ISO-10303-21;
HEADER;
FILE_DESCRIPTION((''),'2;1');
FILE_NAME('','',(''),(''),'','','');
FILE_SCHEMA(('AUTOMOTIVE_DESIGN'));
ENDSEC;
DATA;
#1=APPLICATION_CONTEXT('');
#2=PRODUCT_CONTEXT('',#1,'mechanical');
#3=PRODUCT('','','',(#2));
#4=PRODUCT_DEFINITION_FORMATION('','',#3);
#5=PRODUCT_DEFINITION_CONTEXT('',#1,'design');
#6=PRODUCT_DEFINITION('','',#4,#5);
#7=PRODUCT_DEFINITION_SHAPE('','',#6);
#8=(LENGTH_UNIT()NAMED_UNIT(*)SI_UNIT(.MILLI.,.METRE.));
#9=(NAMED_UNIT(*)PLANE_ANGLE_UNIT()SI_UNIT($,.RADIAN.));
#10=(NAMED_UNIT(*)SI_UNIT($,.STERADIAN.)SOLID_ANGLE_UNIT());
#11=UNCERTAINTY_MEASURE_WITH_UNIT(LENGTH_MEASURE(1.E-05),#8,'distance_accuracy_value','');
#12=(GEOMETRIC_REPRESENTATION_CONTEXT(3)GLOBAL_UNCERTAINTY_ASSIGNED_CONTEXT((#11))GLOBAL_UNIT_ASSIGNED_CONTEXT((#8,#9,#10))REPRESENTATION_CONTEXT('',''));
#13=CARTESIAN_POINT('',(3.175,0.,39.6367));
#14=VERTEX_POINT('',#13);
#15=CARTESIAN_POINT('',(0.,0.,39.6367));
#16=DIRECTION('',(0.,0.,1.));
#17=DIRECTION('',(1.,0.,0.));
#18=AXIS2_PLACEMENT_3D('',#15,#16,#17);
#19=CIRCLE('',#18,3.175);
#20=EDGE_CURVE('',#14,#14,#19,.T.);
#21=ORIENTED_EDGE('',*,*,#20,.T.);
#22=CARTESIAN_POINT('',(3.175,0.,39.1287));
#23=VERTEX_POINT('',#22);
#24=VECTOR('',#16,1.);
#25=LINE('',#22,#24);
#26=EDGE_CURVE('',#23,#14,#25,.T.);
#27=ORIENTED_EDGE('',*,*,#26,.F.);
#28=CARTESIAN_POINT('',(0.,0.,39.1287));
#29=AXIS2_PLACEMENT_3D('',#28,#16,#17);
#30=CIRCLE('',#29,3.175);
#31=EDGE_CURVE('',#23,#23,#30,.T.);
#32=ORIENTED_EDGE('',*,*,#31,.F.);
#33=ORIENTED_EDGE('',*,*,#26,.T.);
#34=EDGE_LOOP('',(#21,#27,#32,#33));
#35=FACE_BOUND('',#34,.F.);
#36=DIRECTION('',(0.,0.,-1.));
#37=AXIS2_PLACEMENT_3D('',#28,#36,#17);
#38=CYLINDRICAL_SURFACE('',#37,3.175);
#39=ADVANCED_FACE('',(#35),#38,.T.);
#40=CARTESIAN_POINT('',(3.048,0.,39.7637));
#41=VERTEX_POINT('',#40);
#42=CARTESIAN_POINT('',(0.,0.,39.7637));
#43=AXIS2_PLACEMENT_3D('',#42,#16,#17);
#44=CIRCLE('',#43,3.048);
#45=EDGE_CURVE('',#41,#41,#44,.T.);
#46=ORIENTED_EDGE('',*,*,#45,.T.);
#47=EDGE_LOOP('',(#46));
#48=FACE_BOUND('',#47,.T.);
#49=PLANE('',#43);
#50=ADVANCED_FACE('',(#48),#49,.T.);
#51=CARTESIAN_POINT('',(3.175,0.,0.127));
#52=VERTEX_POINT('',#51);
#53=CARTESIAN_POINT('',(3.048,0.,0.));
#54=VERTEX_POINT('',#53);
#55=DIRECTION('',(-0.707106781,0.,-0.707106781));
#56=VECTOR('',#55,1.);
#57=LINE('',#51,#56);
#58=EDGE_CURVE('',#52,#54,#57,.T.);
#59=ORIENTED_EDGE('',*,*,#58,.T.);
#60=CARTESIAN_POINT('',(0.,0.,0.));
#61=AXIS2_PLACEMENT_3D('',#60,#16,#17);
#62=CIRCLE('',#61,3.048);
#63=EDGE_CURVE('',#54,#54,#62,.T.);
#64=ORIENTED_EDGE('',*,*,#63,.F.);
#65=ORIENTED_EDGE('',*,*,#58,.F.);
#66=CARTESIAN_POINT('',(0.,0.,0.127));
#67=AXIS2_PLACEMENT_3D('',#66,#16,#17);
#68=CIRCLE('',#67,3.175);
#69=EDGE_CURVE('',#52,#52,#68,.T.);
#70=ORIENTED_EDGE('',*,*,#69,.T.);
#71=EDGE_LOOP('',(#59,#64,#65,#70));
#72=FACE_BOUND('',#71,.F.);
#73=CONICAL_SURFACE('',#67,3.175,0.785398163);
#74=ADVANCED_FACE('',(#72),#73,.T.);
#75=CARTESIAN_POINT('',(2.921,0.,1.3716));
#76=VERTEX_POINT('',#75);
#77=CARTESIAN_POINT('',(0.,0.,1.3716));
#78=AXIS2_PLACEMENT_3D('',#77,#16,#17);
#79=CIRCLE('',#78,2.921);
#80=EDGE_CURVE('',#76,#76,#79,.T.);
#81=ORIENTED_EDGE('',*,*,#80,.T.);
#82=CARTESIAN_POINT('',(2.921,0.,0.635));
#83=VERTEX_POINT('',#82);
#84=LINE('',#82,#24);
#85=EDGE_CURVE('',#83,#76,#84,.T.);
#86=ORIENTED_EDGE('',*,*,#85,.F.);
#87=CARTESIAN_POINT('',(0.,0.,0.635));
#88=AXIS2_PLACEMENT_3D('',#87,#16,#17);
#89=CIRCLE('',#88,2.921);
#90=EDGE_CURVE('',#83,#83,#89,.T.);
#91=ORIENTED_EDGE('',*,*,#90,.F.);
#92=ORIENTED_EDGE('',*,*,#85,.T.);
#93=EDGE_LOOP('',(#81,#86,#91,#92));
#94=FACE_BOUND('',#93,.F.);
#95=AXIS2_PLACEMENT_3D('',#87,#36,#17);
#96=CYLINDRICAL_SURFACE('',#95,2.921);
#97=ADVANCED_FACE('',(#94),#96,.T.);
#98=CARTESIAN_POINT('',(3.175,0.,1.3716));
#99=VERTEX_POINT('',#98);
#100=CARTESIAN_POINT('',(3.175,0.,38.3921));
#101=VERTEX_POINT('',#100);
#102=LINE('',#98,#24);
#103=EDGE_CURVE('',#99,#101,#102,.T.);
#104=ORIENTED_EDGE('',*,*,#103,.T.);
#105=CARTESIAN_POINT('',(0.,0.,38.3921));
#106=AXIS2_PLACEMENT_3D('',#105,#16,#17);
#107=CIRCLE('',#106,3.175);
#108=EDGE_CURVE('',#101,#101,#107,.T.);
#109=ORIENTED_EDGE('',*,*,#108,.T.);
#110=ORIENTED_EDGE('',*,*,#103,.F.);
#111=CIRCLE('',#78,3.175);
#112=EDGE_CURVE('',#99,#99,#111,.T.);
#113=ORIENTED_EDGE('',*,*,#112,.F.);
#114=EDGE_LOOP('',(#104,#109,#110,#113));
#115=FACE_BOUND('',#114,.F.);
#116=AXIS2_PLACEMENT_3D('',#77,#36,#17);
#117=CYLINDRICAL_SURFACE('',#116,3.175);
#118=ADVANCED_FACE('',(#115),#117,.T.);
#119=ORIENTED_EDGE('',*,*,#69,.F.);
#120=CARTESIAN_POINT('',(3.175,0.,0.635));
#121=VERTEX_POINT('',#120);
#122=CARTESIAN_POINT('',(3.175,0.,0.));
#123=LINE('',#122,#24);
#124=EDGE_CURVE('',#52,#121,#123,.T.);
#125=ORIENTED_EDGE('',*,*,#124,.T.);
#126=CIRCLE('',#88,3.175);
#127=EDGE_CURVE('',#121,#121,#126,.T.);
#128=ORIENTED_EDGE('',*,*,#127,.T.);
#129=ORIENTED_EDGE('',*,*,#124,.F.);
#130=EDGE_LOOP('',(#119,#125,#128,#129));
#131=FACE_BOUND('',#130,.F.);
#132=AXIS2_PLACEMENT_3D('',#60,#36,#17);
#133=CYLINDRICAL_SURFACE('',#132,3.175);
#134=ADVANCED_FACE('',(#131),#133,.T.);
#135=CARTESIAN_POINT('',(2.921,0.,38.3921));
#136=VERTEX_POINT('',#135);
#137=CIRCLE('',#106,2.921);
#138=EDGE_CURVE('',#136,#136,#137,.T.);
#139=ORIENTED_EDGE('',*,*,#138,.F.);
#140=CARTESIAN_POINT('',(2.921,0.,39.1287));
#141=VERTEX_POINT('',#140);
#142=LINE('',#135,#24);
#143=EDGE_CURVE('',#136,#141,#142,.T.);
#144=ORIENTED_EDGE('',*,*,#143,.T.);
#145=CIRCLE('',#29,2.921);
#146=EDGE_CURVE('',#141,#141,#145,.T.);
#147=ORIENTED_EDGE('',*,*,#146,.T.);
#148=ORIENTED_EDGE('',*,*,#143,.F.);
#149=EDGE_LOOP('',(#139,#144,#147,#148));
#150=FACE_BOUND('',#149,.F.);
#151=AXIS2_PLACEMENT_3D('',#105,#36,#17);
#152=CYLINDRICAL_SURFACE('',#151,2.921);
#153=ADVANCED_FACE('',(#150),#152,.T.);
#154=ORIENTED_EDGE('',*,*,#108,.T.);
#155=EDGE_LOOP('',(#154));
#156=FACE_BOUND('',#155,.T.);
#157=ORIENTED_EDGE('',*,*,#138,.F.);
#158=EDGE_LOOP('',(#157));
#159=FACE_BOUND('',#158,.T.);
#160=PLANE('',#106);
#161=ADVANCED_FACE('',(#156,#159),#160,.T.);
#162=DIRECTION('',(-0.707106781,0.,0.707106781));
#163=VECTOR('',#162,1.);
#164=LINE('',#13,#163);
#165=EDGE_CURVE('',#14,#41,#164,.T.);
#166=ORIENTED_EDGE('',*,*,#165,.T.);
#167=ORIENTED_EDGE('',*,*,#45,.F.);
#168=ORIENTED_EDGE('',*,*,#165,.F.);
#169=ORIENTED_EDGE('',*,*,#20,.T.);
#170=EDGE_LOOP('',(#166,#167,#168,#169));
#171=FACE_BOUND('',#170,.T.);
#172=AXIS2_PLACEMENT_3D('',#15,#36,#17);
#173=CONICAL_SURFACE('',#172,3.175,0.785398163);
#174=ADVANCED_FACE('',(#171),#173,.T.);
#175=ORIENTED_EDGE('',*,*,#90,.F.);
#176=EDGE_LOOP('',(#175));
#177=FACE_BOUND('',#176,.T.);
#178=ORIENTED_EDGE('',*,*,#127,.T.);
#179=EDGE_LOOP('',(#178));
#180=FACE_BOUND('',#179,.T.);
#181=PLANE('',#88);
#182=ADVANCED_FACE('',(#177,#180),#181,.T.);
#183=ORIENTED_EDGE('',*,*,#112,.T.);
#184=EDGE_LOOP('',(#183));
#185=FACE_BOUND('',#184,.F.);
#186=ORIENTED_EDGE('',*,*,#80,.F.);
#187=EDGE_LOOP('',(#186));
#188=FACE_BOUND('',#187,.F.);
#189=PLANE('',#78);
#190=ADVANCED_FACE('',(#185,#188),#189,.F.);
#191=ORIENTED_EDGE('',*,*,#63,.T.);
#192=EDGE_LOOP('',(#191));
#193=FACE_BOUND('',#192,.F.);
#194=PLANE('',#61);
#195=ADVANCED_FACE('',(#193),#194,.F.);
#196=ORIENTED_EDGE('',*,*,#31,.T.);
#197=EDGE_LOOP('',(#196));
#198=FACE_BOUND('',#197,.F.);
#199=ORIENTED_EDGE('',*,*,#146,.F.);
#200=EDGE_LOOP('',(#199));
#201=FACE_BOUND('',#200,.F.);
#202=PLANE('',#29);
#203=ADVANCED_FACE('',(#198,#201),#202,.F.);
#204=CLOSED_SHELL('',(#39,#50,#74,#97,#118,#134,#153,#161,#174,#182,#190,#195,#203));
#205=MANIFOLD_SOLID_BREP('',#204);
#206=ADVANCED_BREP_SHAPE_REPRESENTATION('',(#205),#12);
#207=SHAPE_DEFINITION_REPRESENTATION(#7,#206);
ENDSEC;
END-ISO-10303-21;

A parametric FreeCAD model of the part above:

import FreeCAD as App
import Part
import Sketcher
Q = App.Units.Quantity


def edges_at(feature, points):
    """Names of the edges that pass closest to the given points."""
    edges = feature.Shape.Edges
    near = lambda p: min(range(len(edges)), key=lambda i: edges[i].distToShape(Part.Vertex(*p))[0])
    return sorted({f"Edge{near(p) + 1}" for p in points})

doc = App.newDocument("Part")
body = doc.addObject("PartDesign::Body", "Body")

sketch1 = doc.addObject("Sketcher::SketchObject", "Sketch")
body.addObject(sketch1)
sketch1.AttachmentSupport = (doc.XY_Plane, [""])
sketch1.MapMode = "FlatFace"
sketch1.addGeometry(Part.Circle(App.Vector(0, 0, 0), App.Vector(0, 0, 1), 3.175), False)
sketch1.addConstraint([
    Sketcher.Constraint("Coincident", 0, 3, -1, 1),
    Sketcher.Constraint("Diameter", 0, Q("0.25 in")),
])
pad1 = doc.addObject("PartDesign::Pad", "Pad")
body.addObject(pad1)
pad1.Profile = sketch1
pad1.Length = Q("0.025 in")

sketch2 = doc.addObject("Sketcher::SketchObject", "Sketch001")
body.addObject(sketch2)
sketch2.AttachmentSupport = (doc.XY_Plane, [""])
sketch2.MapMode = "FlatFace"
sketch2.AttachmentOffset = App.Placement(App.Vector(0, 0, 0.025 * 25.4), App.Rotation())
sketch2.addGeometry(Part.Circle(App.Vector(0, 0, 0), App.Vector(0, 0, 1), 2.921), False)
sketch2.addConstraint([
    Sketcher.Constraint("Coincident", 0, 3, -1, 1),
    Sketcher.Constraint("Diameter", 0, Q("0.23 in")),
])
pad2 = doc.addObject("PartDesign::Pad", "Pad001")
body.addObject(pad2)
pad2.Profile = sketch2
pad2.Length = Q("0.029 in")

sketch3 = doc.addObject("Sketcher::SketchObject", "Sketch002")
body.addObject(sketch3)
sketch3.AttachmentSupport = (doc.XY_Plane, [""])
sketch3.MapMode = "FlatFace"
sketch3.AttachmentOffset = App.Placement(App.Vector(0, 0, 0.054 * 25.4), App.Rotation())
sketch3.addGeometry(Part.Circle(App.Vector(0, 0, 0), App.Vector(0, 0, 1), 3.175), False)
sketch3.addConstraint([
    Sketcher.Constraint("Coincident", 0, 3, -1, 1),
    Sketcher.Constraint("Diameter", 0, Q("0.25 in")),
])
pad3 = doc.addObject("PartDesign::Pad", "Pad002")
body.addObject(pad3)
pad3.Profile = sketch3
pad3.Length = Q("1.4575 in")

sketch4 = doc.addObject("Sketcher::SketchObject", "Sketch003")
body.addObject(sketch4)
sketch4.AttachmentSupport = (doc.XY_Plane, [""])
sketch4.MapMode = "FlatFace"
sketch4.AttachmentOffset = App.Placement(App.Vector(0, 0, 1.5115 * 25.4), App.Rotation())
sketch4.addGeometry(Part.Circle(App.Vector(0, 0, 0), App.Vector(0, 0, 1), 2.921), False)
sketch4.addConstraint([
    Sketcher.Constraint("Coincident", 0, 3, -1, 1),
    Sketcher.Constraint("Diameter", 0, Q("0.23 in")),
])
pad4 = doc.addObject("PartDesign::Pad", "Pad003")
body.addObject(pad4)
pad4.Profile = sketch4
pad4.Length = Q("0.029 in")

sketch5 = doc.addObject("Sketcher::SketchObject", "Sketch004")
body.addObject(sketch5)
sketch5.AttachmentSupport = (doc.XY_Plane, [""])
sketch5.MapMode = "FlatFace"
sketch5.AttachmentOffset = App.Placement(App.Vector(0, 0, 1.5405 * 25.4), App.Rotation())
sketch5.addGeometry(Part.Circle(App.Vector(0, 0, 0), App.Vector(0, 0, 1), 3.175), False)
sketch5.addConstraint([
    Sketcher.Constraint("Coincident", 0, 3, -1, 1),
    Sketcher.Constraint("Diameter", 0, Q("0.25 in")),
])
pad5 = doc.addObject("PartDesign::Pad", "Pad004")
body.addObject(pad5)
pad5.Profile = sketch5
pad5.Length = Q("0.025 in")
doc.recompute()

chamfer = doc.addObject("PartDesign::Chamfer", "Chamfer")
body.addObject(chamfer)
chamfer.Base = (pad5, edges_at(pad5, [(-3.175, 0, 0), (-3.175, 0, 39.764)]))
chamfer.Size = Q("0.005 in")

doc.recompute()
